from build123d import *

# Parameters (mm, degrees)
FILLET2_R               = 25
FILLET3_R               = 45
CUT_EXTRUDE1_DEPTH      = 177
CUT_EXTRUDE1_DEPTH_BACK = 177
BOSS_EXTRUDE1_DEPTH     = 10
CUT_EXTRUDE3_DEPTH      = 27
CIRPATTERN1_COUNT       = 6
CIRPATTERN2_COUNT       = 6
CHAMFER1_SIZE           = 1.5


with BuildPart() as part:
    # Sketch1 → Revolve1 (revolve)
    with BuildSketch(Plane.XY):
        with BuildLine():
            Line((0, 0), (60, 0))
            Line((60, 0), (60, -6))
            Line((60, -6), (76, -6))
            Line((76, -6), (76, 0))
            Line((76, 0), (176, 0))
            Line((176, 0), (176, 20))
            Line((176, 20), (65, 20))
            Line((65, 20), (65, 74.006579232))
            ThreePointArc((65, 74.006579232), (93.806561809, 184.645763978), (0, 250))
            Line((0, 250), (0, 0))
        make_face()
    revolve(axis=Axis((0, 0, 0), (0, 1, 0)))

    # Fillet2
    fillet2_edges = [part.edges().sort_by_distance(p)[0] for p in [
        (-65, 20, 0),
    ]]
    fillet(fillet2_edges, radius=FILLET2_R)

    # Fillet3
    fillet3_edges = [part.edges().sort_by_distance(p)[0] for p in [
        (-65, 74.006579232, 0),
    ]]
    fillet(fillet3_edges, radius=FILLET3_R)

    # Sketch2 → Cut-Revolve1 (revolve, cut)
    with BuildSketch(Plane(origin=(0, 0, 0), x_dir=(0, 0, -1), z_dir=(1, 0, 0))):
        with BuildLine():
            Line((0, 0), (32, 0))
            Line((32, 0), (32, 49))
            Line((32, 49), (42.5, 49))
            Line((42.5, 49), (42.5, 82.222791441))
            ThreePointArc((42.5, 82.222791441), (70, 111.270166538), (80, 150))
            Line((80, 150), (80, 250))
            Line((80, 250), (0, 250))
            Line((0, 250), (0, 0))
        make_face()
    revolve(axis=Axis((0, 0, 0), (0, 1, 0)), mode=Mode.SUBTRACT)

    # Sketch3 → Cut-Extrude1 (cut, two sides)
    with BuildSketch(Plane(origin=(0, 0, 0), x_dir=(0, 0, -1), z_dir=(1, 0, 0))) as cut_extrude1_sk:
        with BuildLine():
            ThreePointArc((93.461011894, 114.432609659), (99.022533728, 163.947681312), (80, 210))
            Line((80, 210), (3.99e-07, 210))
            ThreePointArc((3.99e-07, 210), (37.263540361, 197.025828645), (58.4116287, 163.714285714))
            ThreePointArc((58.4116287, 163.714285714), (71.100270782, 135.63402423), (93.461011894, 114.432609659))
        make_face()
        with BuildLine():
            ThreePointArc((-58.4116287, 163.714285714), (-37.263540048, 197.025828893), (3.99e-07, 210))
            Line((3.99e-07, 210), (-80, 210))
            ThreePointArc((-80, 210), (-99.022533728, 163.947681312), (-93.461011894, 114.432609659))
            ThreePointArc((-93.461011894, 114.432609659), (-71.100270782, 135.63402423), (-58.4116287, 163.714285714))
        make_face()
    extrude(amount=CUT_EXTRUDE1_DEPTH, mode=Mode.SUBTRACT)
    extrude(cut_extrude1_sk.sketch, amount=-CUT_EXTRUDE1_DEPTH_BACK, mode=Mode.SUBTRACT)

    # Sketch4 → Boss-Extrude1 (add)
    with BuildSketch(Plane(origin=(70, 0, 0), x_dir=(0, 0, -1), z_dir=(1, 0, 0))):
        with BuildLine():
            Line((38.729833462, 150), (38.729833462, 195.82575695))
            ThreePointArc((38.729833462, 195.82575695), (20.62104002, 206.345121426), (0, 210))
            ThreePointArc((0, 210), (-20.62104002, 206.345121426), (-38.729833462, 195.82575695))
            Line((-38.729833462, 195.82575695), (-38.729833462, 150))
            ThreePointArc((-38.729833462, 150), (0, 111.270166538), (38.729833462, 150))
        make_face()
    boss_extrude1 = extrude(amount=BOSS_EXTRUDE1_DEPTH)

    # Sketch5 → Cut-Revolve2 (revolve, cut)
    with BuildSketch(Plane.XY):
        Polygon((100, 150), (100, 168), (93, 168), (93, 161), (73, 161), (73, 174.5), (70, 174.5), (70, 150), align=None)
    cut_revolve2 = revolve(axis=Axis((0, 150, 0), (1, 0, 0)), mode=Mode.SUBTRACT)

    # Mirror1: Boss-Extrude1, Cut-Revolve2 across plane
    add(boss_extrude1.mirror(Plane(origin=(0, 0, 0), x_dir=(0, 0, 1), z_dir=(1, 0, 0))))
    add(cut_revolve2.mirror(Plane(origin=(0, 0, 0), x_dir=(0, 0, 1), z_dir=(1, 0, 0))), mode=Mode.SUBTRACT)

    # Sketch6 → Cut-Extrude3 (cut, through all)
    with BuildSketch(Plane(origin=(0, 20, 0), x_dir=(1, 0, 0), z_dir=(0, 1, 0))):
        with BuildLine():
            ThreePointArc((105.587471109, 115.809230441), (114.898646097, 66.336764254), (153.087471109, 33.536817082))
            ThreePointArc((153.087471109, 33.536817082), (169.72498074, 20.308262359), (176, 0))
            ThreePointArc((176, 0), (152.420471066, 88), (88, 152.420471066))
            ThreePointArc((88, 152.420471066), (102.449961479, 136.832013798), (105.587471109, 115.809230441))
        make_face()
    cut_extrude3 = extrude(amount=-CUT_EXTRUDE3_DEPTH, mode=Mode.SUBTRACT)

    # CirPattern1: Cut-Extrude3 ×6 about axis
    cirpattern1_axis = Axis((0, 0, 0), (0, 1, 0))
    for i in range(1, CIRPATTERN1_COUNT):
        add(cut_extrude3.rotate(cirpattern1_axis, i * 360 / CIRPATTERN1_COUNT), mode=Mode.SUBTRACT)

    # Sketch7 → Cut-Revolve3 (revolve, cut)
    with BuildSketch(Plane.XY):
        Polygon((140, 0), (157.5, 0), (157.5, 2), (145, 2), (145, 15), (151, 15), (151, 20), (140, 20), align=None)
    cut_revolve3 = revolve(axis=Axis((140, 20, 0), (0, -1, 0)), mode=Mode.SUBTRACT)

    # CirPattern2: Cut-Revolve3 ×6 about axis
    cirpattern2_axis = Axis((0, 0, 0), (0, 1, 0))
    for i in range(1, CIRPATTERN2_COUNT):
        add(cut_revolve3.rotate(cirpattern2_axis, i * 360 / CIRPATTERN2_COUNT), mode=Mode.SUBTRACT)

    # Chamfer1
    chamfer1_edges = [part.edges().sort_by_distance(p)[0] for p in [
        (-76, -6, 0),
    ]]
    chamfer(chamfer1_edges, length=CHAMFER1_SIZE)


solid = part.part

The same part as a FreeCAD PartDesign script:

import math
import FreeCAD as App
import Part
import Sketcher


def edges_at(feature, points):
    """Names of the edges that pass closest to the given points."""
    edges = feature.Shape.Edges
    near = lambda p: min(range(len(edges)), key=lambda i: edges[i].distToShape(Part.Vertex(*p))[0])
    return sorted({f"Edge{near(p) + 1}" for p in points})


def add_polygon(sketch, points):
    """Adds a closed chain of lines whose ends are joined by coincident constraints."""
    first, n = sketch.GeometryCount, len(points)
    for a, b in zip(points, points[1:] + points[:1]):
        sketch.addGeometry(Part.LineSegment(App.Vector(*a, 0), App.Vector(*b, 0)), False)
    for i in range(n):
        sketch.addConstraint(Sketcher.Constraint("Coincident", first + i, 2, first + (i + 1) % n, 1))

doc = App.newDocument("Part")
body = doc.addObject("PartDesign::Body", "Body")

# Sketch on XY plane
sketch1 = body.newObject("Sketcher::SketchObject", "Sketch")
sketch1.AttachmentSupport = (doc.getObject("XY_Plane"), [""])
sketch1.MapMode = "FlatFace"
sketch1.addGeometry([
    Part.LineSegment(App.Vector(0, 0, 0), App.Vector(60, 0, 0)),  # 0
    Part.LineSegment(App.Vector(60, 0, 0), App.Vector(60, -6, 0)),  # 1
    Part.LineSegment(App.Vector(60, -6, 0), App.Vector(76, -6, 0)),  # 2
    Part.LineSegment(App.Vector(76, -6, 0), App.Vector(76, 0, 0)),  # 3
    Part.LineSegment(App.Vector(76, 0, 0), App.Vector(176, 0, 0)),  # 4
    Part.LineSegment(App.Vector(176, 0, 0), App.Vector(176, 20, 0)),  # 5
    Part.LineSegment(App.Vector(176, 20, 0), App.Vector(65, 20, 0)),  # 6
    Part.LineSegment(App.Vector(65, 20, 0), App.Vector(65, 74.006579, 0)),  # 7
    Part.ArcOfCircle(Part.Circle(App.Vector(0, 150, 0), App.Vector(0, 0, 1), 100), math.radians(-49.458398), math.radians(90)),  # 8
    Part.LineSegment(App.Vector(0, 250, 0), App.Vector(0, 0, 0)),  # 9
], False)
sketch1.addConstraint([
    Sketcher.Constraint("Coincident", 0, 2, 1, 1),
    Sketcher.Constraint("Coincident", 1, 2, 2, 1),
    Sketcher.Constraint("Coincident", 2, 2, 3, 1),
    Sketcher.Constraint("Coincident", 3, 2, 4, 1),
    Sketcher.Constraint("Coincident", 4, 2, 5, 1),
    Sketcher.Constraint("Coincident", 5, 2, 6, 1),
    Sketcher.Constraint("Coincident", 6, 2, 7, 1),
    Sketcher.Constraint("Coincident", 7, 2, 8, 1),
    Sketcher.Constraint("Coincident", 8, 2, 9, 1),
    Sketcher.Constraint("Coincident", 9, 2, 0, 1),
    Sketcher.Constraint("Horizontal", 0),
    Sketcher.Constraint("Vertical", 1),
    Sketcher.Constraint("Horizontal", 2),
    Sketcher.Constraint("Vertical", 3),
    Sketcher.Constraint("Horizontal", 4),
    Sketcher.Constraint("Vertical", 5),
    Sketcher.Constraint("Horizontal", 6),
    Sketcher.Constraint("Vertical", 7),
    Sketcher.Constraint("Vertical", 9),
    Sketcher.Constraint("Coincident", 9, 2, -1, 1),
    Sketcher.Constraint("PointOnObject", 8, 3, -2),
    Sketcher.Constraint("PointOnObject", 3, 2, -1),
    Sketcher.Constraint("Radius", 8, 100.0),
    Sketcher.Constraint("DistanceX", 0, 1, 0, 2, 60.0),
    Sketcher.Constraint("DistanceX", 2, 1, 2, 2, 16.0),
    Sketcher.Constraint("DistanceX", 4, 1, 4, 2, 100.0),
    Sketcher.Constraint("DistanceX", 6, 2, 6, 1, 111.0),
    Sketcher.Constraint("DistanceY", 1, 2, 1, 1, 6.0),
    Sketcher.Constraint("DistanceY", 5, 1, 5, 2, 20.0),
    Sketcher.Constraint("DistanceY", 9, 2, 9, 1, 250.0),
])
revolution = body.newObject("PartDesign::Revolution", "Revolution")
revolution.Profile = sketch1
revolution.ReferenceAxis = (sketch1, ["V_Axis"])
revolution.Angle = 360
doc.recompute()

fillet = body.newObject("PartDesign::Fillet", "Fillet")
fillet.Base = (revolution, edges_at(revolution, [(-65, 20, 0)]))
fillet.Radius = 25
doc.recompute()

fillet2 = body.newObject("PartDesign::Fillet", "Fillet001")
fillet2.Base = (fillet, edges_at(fillet, [(-65, 74.007, 0)]))
fillet2.Radius = 45

# Sketch on YZ plane
sketch2 = body.newObject("Sketcher::SketchObject", "Sketch001")
sketch2.AttachmentSupport = (doc.getObject("YZ_Plane"), [""])
sketch2.MapMode = "FlatFace"
sketch2.addGeometry([
    Part.LineSegment(App.Vector(0, 0, 0), App.Vector(0, -32, 0)),  # 0
    Part.LineSegment(App.Vector(0, -32, 0), App.Vector(49, -32, 0)),  # 1
    Part.LineSegment(App.Vector(49, -32, 0), App.Vector(49, -42.5, 0)),  # 2
    Part.LineSegment(App.Vector(49, -42.5, 0), App.Vector(82.222791, -42.5, 0)),  # 3
    Part.ArcOfCircle(Part.Circle(App.Vector(150, 0, 0), App.Vector(0, 0, 1), 80), math.radians(-147.910049), math.radians(-90)),  # 4
    Part.LineSegment(App.Vector(150, -80, 0), App.Vector(250, -80, 0)),  # 5
    Part.LineSegment(App.Vector(250, -80, 0), App.Vector(250, 0, 0)),  # 6
    Part.LineSegment(App.Vector(250, 0, 0), App.Vector(0, 0, 0)),  # 7
], False)
sketch2.addConstraint([
    Sketcher.Constraint("Coincident", 0, 2, 1, 1),
    Sketcher.Constraint("Coincident", 1, 2, 2, 1),
    Sketcher.Constraint("Coincident", 2, 2, 3, 1),
    Sketcher.Constraint("Coincident", 3, 2, 4, 1),
    Sketcher.Constraint("Tangent", 4, 2, 5, 1),
    Sketcher.Constraint("Coincident", 5, 2, 6, 1),
    Sketcher.Constraint("Coincident", 6, 2, 7, 1),
    Sketcher.Constraint("Coincident", 7, 2, 0, 1),
    Sketcher.Constraint("Vertical", 0),
    Sketcher.Constraint("Horizontal", 1),
    Sketcher.Constraint("Vertical", 2),
    Sketcher.Constraint("Horizontal", 3),
    Sketcher.Constraint("Horizontal", 5),
    Sketcher.Constraint("Vertical", 6),
    Sketcher.Constraint("Horizontal", 7),
    Sketcher.Constraint("Coincident", 7, 2, -1, 1),
    Sketcher.Constraint("PointOnObject", 4, 3, -1),
    Sketcher.Constraint("Radius", 4, 80.0),
    Sketcher.Constraint("DistanceX", 1, 1, 1, 2, 49.0),
    Sketcher.Constraint("DistanceX", 5, 1, 5, 2, 100.0),
    Sketcher.Constraint("DistanceX", 7, 2, 7, 1, 250.0),
    Sketcher.Constraint("DistanceY", 0, 2, 0, 1, 32.0),
    Sketcher.Constraint("DistanceY", 2, 2, 2, 1, 10.5),
])
groove = body.newObject("PartDesign::Groove", "Groove")
groove.Profile = sketch2
groove.ReferenceAxis = (sketch2, ["H_Axis"])
groove.Angle = 360

# Sketch on YZ plane
sketch3 = body.newObject("Sketcher::SketchObject", "Sketch002")
sketch3.AttachmentSupport = (doc.getObject("YZ_Plane"), [""])
sketch3.MapMode = "FlatFace"
sketch3.addGeometry([
    Part.ArcOfCircle(Part.Circle(App.Vector(150, 0, 0), App.Vector(0, 0, 1), 100), math.radians(-110.834752), math.radians(-53.130102)),  # 0
    Part.LineSegment(App.Vector(210, -80, 0), App.Vector(210, 0, 0)),  # 1
    Part.ArcOfCircle(Part.Circle(App.Vector(150, 0, 0), App.Vector(0, 0, 1), 60), math.radians(-76.78702), math.radians(0)),  # 2
    Part.ArcOfCircle(Part.Circle(App.Vector(182, -136.2938, 0), App.Vector(0, 0, 1), 80), math.radians(103.21298), math.radians(147.628289)),  # 3
    Part.ArcOfCircle(Part.Circle(App.Vector(150, 0, 0), App.Vector(0, 0, 1), 60), math.radians(0), math.radians(76.78702)),  # 4
    Part.LineSegment(App.Vector(210, 0, 0), App.Vector(210, 80, 0)),  # 5
    Part.ArcOfCircle(Part.Circle(App.Vector(150, 0, 0), App.Vector(0, 0, 1), 100), math.radians(53.130102), math.radians(110.834752)),  # 6
    Part.ArcOfCircle(Part.Circle(App.Vector(182, 136.2938, 0), App.Vector(0, 0, 1), 80), math.radians(-147.628289), math.radians(-103.21298)),  # 7
], False)
sketch3.addConstraint([
    Sketcher.Constraint("Coincident", 0, 2, 1, 1),
    Sketcher.Constraint("Tangent", 1, 2, 2, 2),
    Sketcher.Constraint("Tangent", 2, 1, 3, 1),
    Sketcher.Constraint("Coincident", 3, 2, 0, 1),
    Sketcher.Constraint("Tangent", 4, 1, 5, 1),
    Sketcher.Constraint("Coincident", 5, 2, 6, 1),
    Sketcher.Constraint("Coincident", 6, 2, 7, 1),
    Sketcher.Constraint("Tangent", 7, 2, 4, 2),
    Sketcher.Constraint("Vertical", 1),
    Sketcher.Constraint("Vertical", 5),
    Sketcher.Constraint("Coincident", 2, 3, 0, 3),
    Sketcher.Constraint("Coincident", 4, 3, 0, 3),
    Sketcher.Constraint("Coincident", 6, 3, 0, 3),
    Sketcher.Constraint("Equal", 2, 4),
    Sketcher.Constraint("Equal", 0, 6),
    Sketcher.Constraint("Equal", 3, 7),
    Sketcher.Constraint("Symmetric", 3, 3, 7, 3, -1),
    Sketcher.Constraint("Radius", 0, 100.0),
    Sketcher.Constraint("Radius", 2, 60.0),
    Sketcher.Constraint("Radius", 3, 80.0),
    Sketcher.Constraint("DistanceX", -1, 1, 0, 3, 150.0),
    Sketcher.Constraint("DistanceX", -1, 1, 3, 3, 182.0),
])
pocket1 = body.newObject("PartDesign::Pocket", "Pocket")
pocket1.Profile = sketch3
pocket1.Type = "ThroughAll"
pocket1.Midplane = True

# Sketch on YZ plane
sketch4 = body.newObject("Sketcher::SketchObject", "Sketch003")
sketch4.AttachmentSupport = (doc.getObject("YZ_Plane"), [""])
sketch4.MapMode = "FlatFace"
sketch4.AttachmentOffset = App.Placement(App.Vector(0, 0, 70), App.Rotation())
sketch4.addGeometry([
    Part.LineSegment(App.Vector(150, -38.729833, 0), App.Vector(195.825757, -38.729833, 0)),  # 0
    Part.ArcOfCircle(Part.Circle(App.Vector(150, 0, 0), App.Vector(0, 0, 1), 60), math.radians(-40.202966), math.radians(0)),  # 1
    Part.ArcOfCircle(Part.Circle(App.Vector(150, 0, 0), App.Vector(0, 0, 1), 60), math.radians(0), math.radians(40.202966)),  # 2
    Part.LineSegment(App.Vector(195.825757, 38.729833, 0), App.Vector(150, 38.729833, 0)),  # 3
    Part.ArcOfCircle(Part.Circle(App.Vector(150, 0, 0), App.Vector(0, 0, 1), 38.729833), math.radians(90), math.radians(270)),  # 4
], False)
sketch4.addConstraint([
    Sketcher.Constraint("Coincident", 0, 2, 1, 1),
    Sketcher.Constraint("Tangent", 1, 2, 2, 1),
    Sketcher.Constraint("Coincident", 2, 2, 3, 1),
    Sketcher.Constraint("Tangent", 3, 2, 4, 1),
    Sketcher.Constraint("Tangent", 4, 2, 0, 1),
    Sketcher.Constraint("Horizontal", 0),
    Sketcher.Constraint("Horizontal", 3),
    Sketcher.Constraint("Coincident", 4, 3, 1, 3),
    Sketcher.Constraint("Equal", 1, 2),
    Sketcher.Constraint("PointOnObject", 1, 3, -1),
    Sketcher.Constraint("PointOnObject", 1, 2, -1),
    Sketcher.Constraint("Radius", 1, 60.0),
    Sketcher.Constraint("DistanceX", -1, 1, 1, 3, 150.0),
    Sketcher.Constraint("Radius", 4, 38.729833),
])
pad1 = body.newObject("PartDesign::Pad", "Pad")
pad1.Profile = sketch4
pad1.Length = 10

# Sketch on XY plane
sketch5 = body.newObject("Sketcher::SketchObject", "Sketch004")
sketch5.AttachmentSupport = (doc.getObject("XY_Plane"), [""])
sketch5.MapMode = "FlatFace"
add_polygon(sketch5, [(100, 150), (100, 168), (93, 168), (93, 161), (73, 161), (73, 174.5), (70, 174.5), (70, 150)])  # lines 0-7
sketch5.addGeometry(Part.LineSegment(App.Vector(70, 150, 0), App.Vector(100, 150, 0)), True)  # axis
sketch5.addConstraint([
    Sketcher.Constraint("Vertical", 0),
    Sketcher.Constraint("Horizontal", 1),
    Sketcher.Constraint("Vertical", 2),
    Sketcher.Constraint("Horizontal", 3),
    Sketcher.Constraint("Vertical", 4),
    Sketcher.Constraint("Horizontal", 5),
    Sketcher.Constraint("Vertical", 6),
    Sketcher.Constraint("Horizontal", 7),
    Sketcher.Constraint("Horizontal", 8),
    Sketcher.Constraint("Coincident", 8, 1, 6, 2),
    Sketcher.Constraint("Vertical", 0, 2, 8, 2),
    Sketcher.Constraint("Equal", 1, 2),
    Sketcher.Constraint("DistanceX", 1, 2, 1, 1, 7.0),
    Sketcher.Constraint("DistanceX", 3, 2, 3, 1, 20.0),
    Sketcher.Constraint("DistanceX", 5, 2, 5, 1, 3.0),
    Sketcher.Constraint("DistanceY", 0, 1, 0, 2, 18.0),
    Sketcher.Constraint("DistanceY", 4, 1, 4, 2, 13.5),
    Sketcher.Constraint("DistanceX", -1, 1, 0, 2, 100.0),
    Sketcher.Constraint("DistanceY", -1, 1, 0, 2, 168.0),
])
groove2 = body.newObject("PartDesign::Groove", "Groove001")
groove2.Profile = sketch5
groove2.ReferenceAxis = (sketch5, ["Axis0"])
groove2.Angle = 360
doc.recompute()

mirrored = body.newObject("PartDesign::Mirrored", "Mirrored")
mirrored.Originals = [pad1, groove2]
mirrored.MirrorPlane = (doc.getObject("YZ_Plane"), [""])
body.Tip = mirrored

# Sketch on XZ plane
sketch6 = body.newObject("Sketcher::SketchObject", "Sketch005")
sketch6.AttachmentSupport = (doc.getObject("XZ_Plane"), [""])
sketch6.MapMode = "FlatFace"
sketch6.AttachmentOffset = App.Placement(App.Vector(0, 0, -20), App.Rotation())
sketch6.addGeometry([
    Part.ArcOfCircle(Part.Circle(App.Vector(180.716577, -104.336764, 0), App.Vector(0, 0, 1), 76), math.radians(111.317813), math.radians(188.682187)),
    Part.ArcOfCircle(Part.Circle(App.Vector(140, 0, 0), App.Vector(0, 0, 1), 36), math.radians(-68.682187), math.radians(0)),
    Part.ArcOfCircle(Part.Circle(App.Vector(0, 0, 0), App.Vector(0, 0, 1), 176), math.radians(-60), math.radians(0)),
    Part.ArcOfCircle(Part.Circle(App.Vector(70, -121.243557, 0), App.Vector(0, 0, 1), 36), math.radians(-60), math.radians(8.682187)),
], False)
sketch6.addConstraint([
    Sketcher.Constraint("Tangent", 0, 1, 1, 1),
    Sketcher.Constraint("Tangent", 1, 2, 2, 2),
    Sketcher.Constraint("Tangent", 2, 1, 3, 1),
    Sketcher.Constraint("Tangent", 3, 2, 0, 2),
    Sketcher.Constraint("Coincident", 2, 3, -1, 1),
    Sketcher.Constraint("Equal", 1, 3),
    Sketcher.Constraint("PointOnObject", 1, 3, -1),
    Sketcher.Constraint("Radius", 0, 76.0),
    Sketcher.Constraint("Radius", 1, 36.0),
    Sketcher.Constraint("Radius", 2, 176.0),
    Sketcher.Constraint("DistanceX", -1, 1, 3, 3, 70.0),
])
pocket2 = body.newObject("PartDesign::Pocket", "Pocket001")
pocket2.Profile = sketch6
pocket2.Type = "ThroughAll"
pocket2.Reversed = True
doc.recompute()

polarpattern = body.newObject("PartDesign::PolarPattern", "PolarPattern")
polarpattern.Originals = [pocket2]
polarpattern.Axis = (doc.getObject("Y_Axis"), [""])
polarpattern.Angle = 360
polarpattern.Occurrences = 6
body.Tip = polarpattern

# Sketch on XY plane
sketch7 = body.newObject("Sketcher::SketchObject", "Sketch006")
sketch7.AttachmentSupport = (doc.getObject("XY_Plane"), [""])
sketch7.MapMode = "FlatFace"
add_polygon(sketch7, [(140, 0), (157.5, 0), (157.5, 2), (145, 2), (145, 15), (151, 15), (151, 20), (140, 20)])  # lines 0-7
sketch7.addGeometry(Part.LineSegment(App.Vector(140, 20, 0), App.Vector(140, 0, 0)), True)  # axis
sketch7.addConstraint([
    Sketcher.Constraint("Horizontal", 0),
    Sketcher.Constraint("Vertical", 1),
    Sketcher.Constraint("Horizontal", 2),
    Sketcher.Constraint("Vertical", 3),
    Sketcher.Constraint("Horizontal", 4),
    Sketcher.Constraint("Vertical", 5),
    Sketcher.Constraint("Horizontal", 6),
    Sketcher.Constraint("Vertical", 7),
    Sketcher.Constraint("Vertical", 8),
    Sketcher.Constraint("Coincident", 8, 1, 6, 2),
    Sketcher.Constraint("PointOnObject", 0, 2, -1),
    Sketcher.Constraint("PointOnObject", 8, 2, -1),
    Sketcher.Constraint("DistanceX", 4, 1, 4, 2, 6.0),
    Sketcher.Constraint("DistanceX", 6, 2, 6, 1, 11.0),
    Sketcher.Constraint("DistanceY", 1, 1, 1, 2, 2.0),
    Sketcher.Constraint("DistanceY", 3, 1, 3, 2, 13.0),
    Sketcher.Constraint("DistanceY", 5, 1, 5, 2, 5.0),
    Sketcher.Constraint("DistanceX", 0, 1, 0, 2, 17.5),
    Sketcher.Constraint("DistanceX", -1, 1, 2, 2, 145.0),
])
groove3 = body.newObject("PartDesign::Groove", "Groove002")
groove3.Profile = sketch7
groove3.ReferenceAxis = (sketch7, ["Axis0"])
groove3.Angle = 360
doc.recompute()

polarpattern2 = body.newObject("PartDesign::PolarPattern", "PolarPattern001")
polarpattern2.Originals = [groove3]
polarpattern2.Axis = (doc.getObject("Y_Axis"), [""])
polarpattern2.Angle = 360
polarpattern2.Occurrences = 6
body.Tip = polarpattern2
doc.recompute()

chamfer = body.newObject("PartDesign::Chamfer", "Chamfer")
chamfer.Base = (polarpattern2, edges_at(polarpattern2, [(-76, -6, 0)]))
chamfer.Size = 1.5

doc.recompute()
